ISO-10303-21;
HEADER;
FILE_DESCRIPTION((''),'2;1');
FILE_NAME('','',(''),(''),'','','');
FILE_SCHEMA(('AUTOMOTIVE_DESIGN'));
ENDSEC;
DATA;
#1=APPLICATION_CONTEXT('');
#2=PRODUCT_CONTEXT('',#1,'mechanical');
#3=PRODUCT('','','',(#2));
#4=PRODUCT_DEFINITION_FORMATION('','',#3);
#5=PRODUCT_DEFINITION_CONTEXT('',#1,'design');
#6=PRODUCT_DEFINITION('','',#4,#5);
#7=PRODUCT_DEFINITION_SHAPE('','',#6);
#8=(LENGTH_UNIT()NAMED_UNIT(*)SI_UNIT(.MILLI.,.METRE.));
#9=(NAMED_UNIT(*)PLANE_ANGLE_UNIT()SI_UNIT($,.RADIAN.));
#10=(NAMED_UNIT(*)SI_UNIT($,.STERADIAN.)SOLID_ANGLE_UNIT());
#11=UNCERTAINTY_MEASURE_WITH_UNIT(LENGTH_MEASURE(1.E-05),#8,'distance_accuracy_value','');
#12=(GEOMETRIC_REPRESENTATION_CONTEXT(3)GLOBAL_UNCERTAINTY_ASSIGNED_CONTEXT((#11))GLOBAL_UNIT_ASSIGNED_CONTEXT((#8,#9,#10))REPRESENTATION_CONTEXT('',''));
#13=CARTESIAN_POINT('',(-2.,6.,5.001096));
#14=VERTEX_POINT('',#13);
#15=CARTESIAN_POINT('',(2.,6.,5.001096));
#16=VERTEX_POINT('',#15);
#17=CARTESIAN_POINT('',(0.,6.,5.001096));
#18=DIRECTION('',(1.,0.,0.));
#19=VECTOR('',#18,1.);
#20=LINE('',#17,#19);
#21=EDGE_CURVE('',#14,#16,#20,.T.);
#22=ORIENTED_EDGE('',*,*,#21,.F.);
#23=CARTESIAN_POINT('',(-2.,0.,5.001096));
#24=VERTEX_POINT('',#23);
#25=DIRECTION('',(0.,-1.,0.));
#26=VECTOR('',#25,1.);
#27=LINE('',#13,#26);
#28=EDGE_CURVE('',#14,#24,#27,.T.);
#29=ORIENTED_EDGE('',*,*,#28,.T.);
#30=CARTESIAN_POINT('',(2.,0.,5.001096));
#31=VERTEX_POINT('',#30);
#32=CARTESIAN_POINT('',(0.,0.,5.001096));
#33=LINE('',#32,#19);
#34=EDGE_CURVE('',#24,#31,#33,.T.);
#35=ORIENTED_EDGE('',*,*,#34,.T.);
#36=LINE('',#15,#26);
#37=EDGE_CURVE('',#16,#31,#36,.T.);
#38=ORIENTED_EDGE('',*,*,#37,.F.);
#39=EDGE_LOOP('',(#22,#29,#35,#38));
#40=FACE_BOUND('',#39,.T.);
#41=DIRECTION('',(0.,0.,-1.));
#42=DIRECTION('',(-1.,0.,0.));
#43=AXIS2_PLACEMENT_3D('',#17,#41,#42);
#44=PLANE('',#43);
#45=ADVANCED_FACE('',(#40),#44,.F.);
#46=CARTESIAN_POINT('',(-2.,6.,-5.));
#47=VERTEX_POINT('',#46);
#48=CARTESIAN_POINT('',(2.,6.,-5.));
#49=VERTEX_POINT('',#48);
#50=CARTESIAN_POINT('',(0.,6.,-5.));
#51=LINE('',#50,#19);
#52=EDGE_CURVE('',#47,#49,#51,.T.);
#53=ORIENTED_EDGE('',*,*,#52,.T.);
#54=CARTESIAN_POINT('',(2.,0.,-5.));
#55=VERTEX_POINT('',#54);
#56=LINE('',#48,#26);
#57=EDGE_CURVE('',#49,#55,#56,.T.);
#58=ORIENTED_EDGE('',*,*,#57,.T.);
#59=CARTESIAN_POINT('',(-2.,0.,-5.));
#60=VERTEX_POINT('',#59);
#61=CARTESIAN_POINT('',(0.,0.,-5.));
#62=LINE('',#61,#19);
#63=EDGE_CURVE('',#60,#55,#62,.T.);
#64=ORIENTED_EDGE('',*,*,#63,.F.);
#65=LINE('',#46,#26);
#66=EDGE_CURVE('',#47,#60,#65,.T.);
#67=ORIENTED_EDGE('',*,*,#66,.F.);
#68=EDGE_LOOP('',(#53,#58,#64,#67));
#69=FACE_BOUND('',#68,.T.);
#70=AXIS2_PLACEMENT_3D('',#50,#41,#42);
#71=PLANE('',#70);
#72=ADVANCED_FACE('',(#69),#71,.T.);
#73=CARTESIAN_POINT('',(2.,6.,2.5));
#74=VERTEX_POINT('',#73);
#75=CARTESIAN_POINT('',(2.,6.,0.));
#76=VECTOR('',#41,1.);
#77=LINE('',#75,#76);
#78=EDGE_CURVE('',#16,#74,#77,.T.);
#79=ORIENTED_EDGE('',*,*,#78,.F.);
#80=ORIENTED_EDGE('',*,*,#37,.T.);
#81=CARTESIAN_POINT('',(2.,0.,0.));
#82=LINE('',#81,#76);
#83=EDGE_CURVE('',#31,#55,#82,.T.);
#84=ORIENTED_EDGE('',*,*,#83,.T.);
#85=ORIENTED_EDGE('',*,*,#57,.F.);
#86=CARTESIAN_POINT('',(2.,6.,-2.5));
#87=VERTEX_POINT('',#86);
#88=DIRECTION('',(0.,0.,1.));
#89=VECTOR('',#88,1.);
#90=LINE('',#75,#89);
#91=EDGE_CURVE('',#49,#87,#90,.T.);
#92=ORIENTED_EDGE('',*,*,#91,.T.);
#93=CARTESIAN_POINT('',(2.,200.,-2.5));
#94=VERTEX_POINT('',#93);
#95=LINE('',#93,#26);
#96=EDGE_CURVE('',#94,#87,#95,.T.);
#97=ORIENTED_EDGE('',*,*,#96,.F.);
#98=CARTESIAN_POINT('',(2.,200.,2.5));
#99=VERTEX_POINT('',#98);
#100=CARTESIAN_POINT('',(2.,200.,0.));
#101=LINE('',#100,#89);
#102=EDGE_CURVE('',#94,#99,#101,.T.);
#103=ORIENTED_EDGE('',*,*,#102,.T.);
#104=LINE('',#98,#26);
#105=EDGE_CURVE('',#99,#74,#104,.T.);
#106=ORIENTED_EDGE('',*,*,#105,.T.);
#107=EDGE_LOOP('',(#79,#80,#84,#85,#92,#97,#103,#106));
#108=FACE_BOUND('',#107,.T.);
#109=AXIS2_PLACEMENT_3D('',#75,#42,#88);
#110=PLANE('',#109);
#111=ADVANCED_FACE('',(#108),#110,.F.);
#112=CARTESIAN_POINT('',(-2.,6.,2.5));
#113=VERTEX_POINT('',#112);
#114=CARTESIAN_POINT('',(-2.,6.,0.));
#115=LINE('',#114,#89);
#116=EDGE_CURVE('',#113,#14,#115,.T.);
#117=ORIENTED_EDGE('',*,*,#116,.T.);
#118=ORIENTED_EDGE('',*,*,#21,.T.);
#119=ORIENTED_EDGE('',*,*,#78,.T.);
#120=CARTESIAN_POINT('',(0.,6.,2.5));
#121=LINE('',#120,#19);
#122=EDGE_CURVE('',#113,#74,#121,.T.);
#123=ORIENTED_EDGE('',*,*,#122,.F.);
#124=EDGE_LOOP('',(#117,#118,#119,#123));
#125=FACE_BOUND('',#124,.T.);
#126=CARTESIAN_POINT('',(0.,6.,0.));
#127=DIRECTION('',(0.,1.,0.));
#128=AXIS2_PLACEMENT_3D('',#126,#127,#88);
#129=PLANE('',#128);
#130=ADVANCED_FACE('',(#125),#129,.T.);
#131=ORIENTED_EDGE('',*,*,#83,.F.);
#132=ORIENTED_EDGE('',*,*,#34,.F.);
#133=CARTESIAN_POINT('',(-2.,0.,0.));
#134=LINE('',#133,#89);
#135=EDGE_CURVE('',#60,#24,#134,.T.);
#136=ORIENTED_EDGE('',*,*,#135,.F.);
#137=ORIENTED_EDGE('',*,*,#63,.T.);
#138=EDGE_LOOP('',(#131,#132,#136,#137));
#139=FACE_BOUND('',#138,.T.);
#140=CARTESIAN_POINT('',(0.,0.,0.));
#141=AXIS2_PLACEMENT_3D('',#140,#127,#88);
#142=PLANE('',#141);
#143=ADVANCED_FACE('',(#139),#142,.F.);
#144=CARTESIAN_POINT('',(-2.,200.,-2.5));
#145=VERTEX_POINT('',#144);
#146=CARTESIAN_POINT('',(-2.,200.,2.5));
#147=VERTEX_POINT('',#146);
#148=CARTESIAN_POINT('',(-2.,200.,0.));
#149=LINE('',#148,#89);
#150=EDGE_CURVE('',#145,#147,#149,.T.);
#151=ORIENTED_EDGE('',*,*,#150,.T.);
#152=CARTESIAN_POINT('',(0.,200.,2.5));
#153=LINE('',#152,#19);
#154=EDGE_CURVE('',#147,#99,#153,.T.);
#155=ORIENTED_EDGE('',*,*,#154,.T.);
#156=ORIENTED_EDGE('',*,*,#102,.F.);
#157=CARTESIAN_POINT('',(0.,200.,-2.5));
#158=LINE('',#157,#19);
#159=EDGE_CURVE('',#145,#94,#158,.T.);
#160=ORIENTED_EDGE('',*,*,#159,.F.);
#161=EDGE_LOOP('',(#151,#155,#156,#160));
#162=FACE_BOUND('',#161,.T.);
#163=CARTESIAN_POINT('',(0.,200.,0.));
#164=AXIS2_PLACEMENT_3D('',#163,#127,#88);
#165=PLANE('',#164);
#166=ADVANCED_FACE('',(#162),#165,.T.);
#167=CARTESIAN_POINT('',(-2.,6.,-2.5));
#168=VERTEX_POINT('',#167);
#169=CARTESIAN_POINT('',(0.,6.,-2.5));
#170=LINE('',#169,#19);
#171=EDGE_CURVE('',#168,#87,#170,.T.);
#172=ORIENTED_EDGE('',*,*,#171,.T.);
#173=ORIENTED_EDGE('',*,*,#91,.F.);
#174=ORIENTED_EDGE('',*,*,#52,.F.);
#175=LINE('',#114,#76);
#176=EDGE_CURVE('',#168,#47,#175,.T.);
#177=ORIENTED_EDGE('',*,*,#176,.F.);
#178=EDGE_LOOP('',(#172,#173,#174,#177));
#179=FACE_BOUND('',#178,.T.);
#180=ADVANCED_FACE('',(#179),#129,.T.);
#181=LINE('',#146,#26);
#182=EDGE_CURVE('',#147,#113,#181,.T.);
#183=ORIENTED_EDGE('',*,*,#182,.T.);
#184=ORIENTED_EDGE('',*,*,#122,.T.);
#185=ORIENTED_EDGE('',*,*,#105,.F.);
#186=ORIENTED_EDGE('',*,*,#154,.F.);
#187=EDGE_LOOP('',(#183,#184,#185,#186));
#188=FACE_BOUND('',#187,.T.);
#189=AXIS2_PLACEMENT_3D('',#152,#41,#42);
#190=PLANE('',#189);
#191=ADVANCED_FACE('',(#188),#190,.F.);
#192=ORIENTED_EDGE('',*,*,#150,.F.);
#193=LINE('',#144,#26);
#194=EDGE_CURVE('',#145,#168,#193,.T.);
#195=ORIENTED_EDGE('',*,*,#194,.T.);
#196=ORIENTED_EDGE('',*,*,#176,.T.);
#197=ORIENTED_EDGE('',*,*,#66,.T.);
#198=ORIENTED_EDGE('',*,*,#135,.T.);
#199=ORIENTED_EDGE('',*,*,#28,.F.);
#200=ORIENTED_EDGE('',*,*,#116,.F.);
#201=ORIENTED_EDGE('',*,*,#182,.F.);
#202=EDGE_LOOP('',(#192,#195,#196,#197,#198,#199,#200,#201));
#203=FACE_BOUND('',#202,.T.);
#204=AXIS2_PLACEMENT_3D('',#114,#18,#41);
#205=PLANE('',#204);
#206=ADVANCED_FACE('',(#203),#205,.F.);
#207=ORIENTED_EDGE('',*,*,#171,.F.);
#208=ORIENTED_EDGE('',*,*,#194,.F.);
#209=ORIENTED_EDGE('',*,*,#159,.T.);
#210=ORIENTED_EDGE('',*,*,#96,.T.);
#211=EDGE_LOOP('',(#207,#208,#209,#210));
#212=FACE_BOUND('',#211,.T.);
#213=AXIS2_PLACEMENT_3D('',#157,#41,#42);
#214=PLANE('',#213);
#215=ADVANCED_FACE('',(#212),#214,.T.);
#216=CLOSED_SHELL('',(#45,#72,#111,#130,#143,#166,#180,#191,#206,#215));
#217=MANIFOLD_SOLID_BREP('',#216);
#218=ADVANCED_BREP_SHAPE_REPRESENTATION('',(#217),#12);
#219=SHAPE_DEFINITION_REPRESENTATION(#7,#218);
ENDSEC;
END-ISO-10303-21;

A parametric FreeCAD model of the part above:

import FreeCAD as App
import Part
import Sketcher


def add_polygon(sketch, points):
    """Adds a closed chain of lines whose ends are joined by coincident constraints."""
    first, n = sketch.GeometryCount, len(points)
    for a, b in zip(points, points[1:] + points[:1]):
        sketch.addGeometry(Part.LineSegment(App.Vector(*a, 0), App.Vector(*b, 0)), False)
    for i in range(n):
        sketch.addConstraint(Sketcher.Constraint("Coincident", first + i, 2, first + (i + 1) % n, 1))

doc = App.newDocument("Part")
body = doc.addObject("PartDesign::Body", "Body")

# Sketch on XZ plane
sketch1 = body.newObject("Sketcher::SketchObject", "Sketch")
sketch1.AttachmentSupport = (doc.getObject("XZ_Plane"), [""])
sketch1.MapMode = "FlatFace"
add_polygon(sketch1, [(-2, 2.5), (-2, 5), (2, 5), (2, 2.5)])  # lines 0-3
sketch1.addConstraint([
    Sketcher.Constraint("Vertical", 0),
    Sketcher.Constraint("Horizontal", 1),
    Sketcher.Constraint("Vertical", 2),
    Sketcher.Constraint("Horizontal", 3),
    Sketcher.Constraint("DistanceX", 1, 1, 1, 2, 4.0),
    Sketcher.Constraint("DistanceX", 0, 2, -1, 1, 2.0),
    Sketcher.Constraint("DistanceY", -1, 1, 2, 2, 2.5),
    Sketcher.Constraint("DistanceY", 0, 1, 0, 2, 2.501096),
])
pad1 = body.newObject("PartDesign::Pad", "Pad")
pad1.Profile = sketch1
pad1.Length = 6
pad1.Reversed = True
body2 = doc.addObject("PartDesign::Body", "Body001")

# Sketch on XZ plane
sketch2 = body2.newObject("Sketcher::SketchObject", "Sketch001")
sketch2.AttachmentSupport = (doc.getObject("XZ_Plane001"), [""])
sketch2.MapMode = "FlatFace"
add_polygon(sketch2, [(-2, -5), (-2, -2.5), (2, -2.5), (2, -5)])  # lines 0-3
sketch2.addConstraint([
    Sketcher.Constraint("Vertical", 0),
    Sketcher.Constraint("Horizontal", 1),
    Sketcher.Constraint("Vertical", 2),
    Sketcher.Constraint("Horizontal", 3),
    Sketcher.Constraint("DistanceX", 1, 1, 1, 2, 4.0),
    Sketcher.Constraint("DistanceY", 0, 1, 0, 2, 2.5),
    Sketcher.Constraint("DistanceX", 0, 2, -1, 1, 2.0),
    Sketcher.Constraint("DistanceY", 2, 2, -1, 1, 5.0),
])
pad2 = body2.newObject("PartDesign::Pad", "Pad001")
pad2.Profile = sketch2
pad2.Length = 6
pad2.Reversed = True
body.AllowCompound = True
doc.recompute()

boolean = body.newObject("PartDesign::Boolean", "Boolean")
boolean.Type = "Fuse"
boolean.addObjects([body2])

# Sketch on XZ plane
sketch3 = body.newObject("Sketcher::SketchObject", "Sketch002")
sketch3.AttachmentSupport = (doc.getObject("XZ_Plane"), [""])
sketch3.MapMode = "FlatFace"
add_polygon(sketch3, [(-2, -2.5), (-2, 2.5), (2, 2.5), (2, -2.5)])  # lines 0-3
sketch3.addConstraint([
    Sketcher.Constraint("Vertical", 0),
    Sketcher.Constraint("Horizontal", 1),
    Sketcher.Constraint("Vertical", 2),
    Sketcher.Constraint("Horizontal", 3),
    Sketcher.Constraint("Symmetric", 0, 2, 2, 2, -1, 1),
    Sketcher.Constraint("DistanceX", 1, 1, 1, 2, 4.0),
    Sketcher.Constraint("DistanceY", 0, 1, 0, 2, 5.0),
])
pad3 = body.newObject("PartDesign::Pad", "Pad002")
pad3.Profile = sketch3
pad3.Length = 200
pad3.Reversed = True

doc.recompute()
